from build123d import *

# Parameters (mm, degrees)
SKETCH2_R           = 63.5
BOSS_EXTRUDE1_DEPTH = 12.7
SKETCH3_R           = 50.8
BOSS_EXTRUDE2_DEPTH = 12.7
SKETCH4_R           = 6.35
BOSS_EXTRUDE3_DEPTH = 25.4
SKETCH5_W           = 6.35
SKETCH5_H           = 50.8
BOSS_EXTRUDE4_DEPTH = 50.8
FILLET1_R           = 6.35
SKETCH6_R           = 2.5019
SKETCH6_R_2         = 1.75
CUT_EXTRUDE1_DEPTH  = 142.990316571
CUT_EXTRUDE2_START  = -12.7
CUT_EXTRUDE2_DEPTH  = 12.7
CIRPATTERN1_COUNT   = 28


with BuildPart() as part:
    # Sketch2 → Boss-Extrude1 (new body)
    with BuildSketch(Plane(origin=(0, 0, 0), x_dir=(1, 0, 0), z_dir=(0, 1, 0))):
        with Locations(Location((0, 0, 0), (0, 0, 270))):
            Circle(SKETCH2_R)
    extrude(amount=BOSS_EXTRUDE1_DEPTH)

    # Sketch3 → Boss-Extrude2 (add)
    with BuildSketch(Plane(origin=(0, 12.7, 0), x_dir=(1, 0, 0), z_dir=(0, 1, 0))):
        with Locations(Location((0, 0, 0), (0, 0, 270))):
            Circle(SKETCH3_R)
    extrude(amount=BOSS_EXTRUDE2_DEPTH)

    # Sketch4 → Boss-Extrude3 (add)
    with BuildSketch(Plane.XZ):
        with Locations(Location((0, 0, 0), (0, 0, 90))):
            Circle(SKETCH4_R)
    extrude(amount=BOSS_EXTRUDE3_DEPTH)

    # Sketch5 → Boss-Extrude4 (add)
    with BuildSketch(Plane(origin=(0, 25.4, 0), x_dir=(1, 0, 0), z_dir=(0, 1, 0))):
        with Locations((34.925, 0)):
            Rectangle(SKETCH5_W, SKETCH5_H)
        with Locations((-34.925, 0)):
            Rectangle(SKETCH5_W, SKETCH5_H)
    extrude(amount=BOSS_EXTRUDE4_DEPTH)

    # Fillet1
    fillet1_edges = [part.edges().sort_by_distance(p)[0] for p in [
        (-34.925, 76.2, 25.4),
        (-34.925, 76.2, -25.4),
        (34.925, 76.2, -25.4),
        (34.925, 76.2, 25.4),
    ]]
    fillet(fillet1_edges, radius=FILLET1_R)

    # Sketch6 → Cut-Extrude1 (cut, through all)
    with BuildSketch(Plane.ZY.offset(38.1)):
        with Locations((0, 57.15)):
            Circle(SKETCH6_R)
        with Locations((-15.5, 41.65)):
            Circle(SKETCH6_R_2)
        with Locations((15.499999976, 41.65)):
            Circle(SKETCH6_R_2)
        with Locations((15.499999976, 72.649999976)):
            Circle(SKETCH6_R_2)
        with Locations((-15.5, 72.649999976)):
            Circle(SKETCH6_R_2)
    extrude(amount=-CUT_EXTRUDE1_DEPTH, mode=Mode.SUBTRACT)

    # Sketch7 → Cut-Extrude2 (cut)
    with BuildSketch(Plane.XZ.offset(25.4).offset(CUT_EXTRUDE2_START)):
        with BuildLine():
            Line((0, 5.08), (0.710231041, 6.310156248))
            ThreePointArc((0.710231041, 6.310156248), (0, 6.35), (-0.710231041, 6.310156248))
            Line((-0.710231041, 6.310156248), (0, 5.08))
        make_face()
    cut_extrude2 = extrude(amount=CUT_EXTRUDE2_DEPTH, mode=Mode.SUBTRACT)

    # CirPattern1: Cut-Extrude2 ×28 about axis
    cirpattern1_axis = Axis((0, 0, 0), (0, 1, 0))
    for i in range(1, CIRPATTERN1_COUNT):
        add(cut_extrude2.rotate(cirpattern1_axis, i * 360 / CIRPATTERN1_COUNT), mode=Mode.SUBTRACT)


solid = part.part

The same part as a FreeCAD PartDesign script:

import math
import FreeCAD as App
import Part
import Sketcher
Q = App.Units.Quantity


def edges_at(feature, points):
    """Names of the edges that pass closest to the given points."""
    edges = feature.Shape.Edges
    near = lambda p: min(range(len(edges)), key=lambda i: edges[i].distToShape(Part.Vertex(*p))[0])
    return sorted({f"Edge{near(p) + 1}" for p in points})


def add_polygon(sketch, points):
    """Adds a closed chain of lines whose ends are joined by coincident constraints."""
    first, n = sketch.GeometryCount, len(points)
    for a, b in zip(points, points[1:] + points[:1]):
        sketch.addGeometry(Part.LineSegment(App.Vector(*a, 0), App.Vector(*b, 0)), False)
    for i in range(n):
        sketch.addConstraint(Sketcher.Constraint("Coincident", first + i, 2, first + (i + 1) % n, 1))

doc = App.newDocument("Part")
params = doc.addObject("Spreadsheet::Sheet", "Params")
for row, (alias, value) in enumerate([
    ("sketch1_diameter", "5 in"),
    ("pad1_length", "0.5 in"),
    ("sketch2_diameter", "4 in"),
    ("pad2_length", "0.5 in"),
    ("sketch3_diameter", "0.5 in"),
    ("pad3_length", "1 in"),
    ("sketch4_height", "2 in"),
    ("sketch4_width", "0.25 in"),
    ("pad4_length", "2 in"),
    ("fillet_radius", "0.25 in"),
    ("sketch5_diameter", "0.197 in"),
    ("sketch6_radius", "0.25 in"),
    ("pocket2_length", "0.5 in"),
], start=1):
    params.set(f"A{row}", alias)
    params.set(f"B{row}", "=" + value)
    params.setAlias(f"B{row}", alias)

body = doc.addObject("PartDesign::Body", "Body")

sketch1 = doc.addObject("Sketcher::SketchObject", "Sketch")
body.addObject(sketch1)
sketch1.AttachmentSupport = (doc.XZ_Plane, [""])
sketch1.MapMode = "FlatFace"
sketch1.addGeometry(Part.Circle(App.Vector(0, 0, 0), App.Vector(0, 0, 1), 63.5), False)
sketch1.addConstraint(Sketcher.Constraint("Coincident", 0, 3, -1, 1))
sketch1.addConstraint(Sketcher.Constraint("Diameter", 0, Q("5 in")))
sketch1.setExpression("Constraints[1]", "Params.sketch1_diameter")
pad1 = doc.addObject("PartDesign::Pad", "Pad")
body.addObject(pad1)
pad1.Profile = sketch1
pad1.setExpression("Length", "Params.pad1_length")
pad1.Reversed = True

sketch2 = doc.addObject("Sketcher::SketchObject", "Sketch001")
body.addObject(sketch2)
sketch2.AttachmentSupport = (doc.XZ_Plane, [""])
sketch2.MapMode = "FlatFace"
sketch2.AttachmentOffset = App.Placement(App.Vector(0, 0, -0.5 * 25.4), App.Rotation())
sketch2.addGeometry(Part.Circle(App.Vector(0, 0, 0), App.Vector(0, 0, 1), 50.8), False)
sketch2.addConstraint(Sketcher.Constraint("Coincident", 0, 3, -1, 1))
sketch2.addConstraint(Sketcher.Constraint("Diameter", 0, Q("4 in")))
sketch2.setExpression("Constraints[1]", "Params.sketch2_diameter")
pad2 = doc.addObject("PartDesign::Pad", "Pad001")
body.addObject(pad2)
pad2.Profile = sketch2
pad2.setExpression("Length", "Params.pad2_length")
pad2.Reversed = True

sketch3 = doc.addObject("Sketcher::SketchObject", "Sketch002")
body.addObject(sketch3)
sketch3.AttachmentSupport = (doc.XZ_Plane, [""])
sketch3.MapMode = "FlatFace"
sketch3.addGeometry(Part.Circle(App.Vector(0, 0, 0), App.Vector(0, 0, 1), 6.35), False)
sketch3.addConstraint(Sketcher.Constraint("Coincident", 0, 3, -1, 1))
sketch3.addConstraint(Sketcher.Constraint("Diameter", 0, Q("0.5 in")))
sketch3.setExpression("Constraints[1]", "Params.sketch3_diameter")
pad3 = doc.addObject("PartDesign::Pad", "Pad002")
body.addObject(pad3)
pad3.Profile = sketch3
pad3.setExpression("Length", "Params.pad3_length")

sketch4 = doc.addObject("Sketcher::SketchObject", "Sketch003")
body.addObject(sketch4)
sketch4.AttachmentSupport = (doc.XZ_Plane, [""])
sketch4.MapMode = "FlatFace"
sketch4.AttachmentOffset = App.Placement(App.Vector(0, 0, -1 * 25.4), App.Rotation())
add_polygon(sketch4, [(31.75, -25.4), (31.75, 25.4), (38.1, 25.4), (38.1, -25.4)])
add_polygon(sketch4, [(-38.1, -25.4), (-38.1, 25.4), (-31.75, 25.4), (-31.75, -25.4)])
sketch4.addConstraint(Sketcher.Constraint("Vertical", 0))
sketch4.addConstraint(Sketcher.Constraint("Horizontal", 1))
sketch4.addConstraint(Sketcher.Constraint("Vertical", 2))
sketch4.addConstraint(Sketcher.Constraint("Horizontal", 3))
sketch4.addConstraint(Sketcher.Constraint("Vertical", 4))
sketch4.addConstraint(Sketcher.Constraint("Horizontal", 5))
sketch4.addConstraint(Sketcher.Constraint("Vertical", 6))
sketch4.addConstraint(Sketcher.Constraint("Horizontal", 7))
sketch4.addConstraint(Sketcher.Constraint("Symmetric", 2, 2, 4, 2, -1, 1))
sketch4.addConstraint(Sketcher.Constraint("Symmetric", 0, 2, 6, 2, -1, 1))
sketch4.addConstraint(Sketcher.Constraint("Horizontal", 1, 2, 4, 2))
sketch4.addConstraint(Sketcher.Constraint("DistanceY", 0, 1, 0, 2, Q("2 in")))
sketch4.addConstraint(Sketcher.Constraint("DistanceX", 4, 2, 1, 2, Q("3 in")))
sketch4.addConstraint(Sketcher.Constraint("DistanceX", 1, 1, 1, 2, Q("0.25 in")))
sketch4.setExpression("Constraints[19]", "Params.sketch4_height")
sketch4.setExpression("Constraints[21]", "Params.sketch4_width")
pad4 = doc.addObject("PartDesign::Pad", "Pad003")
body.addObject(pad4)
pad4.Profile = sketch4
pad4.setExpression("Length", "Params.pad4_length")
pad4.Reversed = True
doc.recompute()

fillet = doc.addObject("PartDesign::Fillet", "Fillet")
body.addObject(fillet)
fillet.Base = (pad4, edges_at(pad4, [
    (-34.925, 76.2, 25.4),
    (-34.925, 76.2, -25.4),
    (34.925, 76.2, -25.4),
    (34.925, 76.2, 25.4),
]))
fillet.setExpression("Radius", "Params.fillet_radius")

sketch5 = doc.addObject("Sketcher::SketchObject", "Sketch004")
body.addObject(sketch5)
sketch5.AttachmentSupport = (doc.YZ_Plane, [""])
sketch5.MapMode = "FlatFace"
sketch5.AttachmentOffset = App.Placement(App.Vector(0, 0, -1.5 * 25.4), App.Rotation())
sketch5.addGeometry(Part.Circle(App.Vector(57.15, 0, 0), App.Vector(0, 0, 1), 2.5019), False)
sketch5.addGeometry(Part.Circle(App.Vector(41.65, -15.5, 0), App.Vector(0, 0, 1), 1.75), False)
sketch5.addGeometry(Part.Circle(App.Vector(41.65, 15.5, 0), App.Vector(0, 0, 1), 1.75), False)
sketch5.addGeometry(Part.Circle(App.Vector(72.65, 15.5, 0), App.Vector(0, 0, 1), 1.75), False)
sketch5.addGeometry(Part.Circle(App.Vector(72.65, -15.5, 0), App.Vector(0, 0, 1), 1.75), False)
sketch5.addConstraint(Sketcher.Constraint("Equal", 1, 2))
sketch5.addConstraint(Sketcher.Constraint("Equal", 2, 3))
sketch5.addConstraint(Sketcher.Constraint("Equal", 3, 4))
sketch5.addConstraint(Sketcher.Constraint("Symmetric", 1, 3, 2, 3, -1))
sketch5.addConstraint(Sketcher.Constraint("Symmetric", 3, 3, 4, 3, -1))
sketch5.addConstraint(Sketcher.Constraint("PointOnObject", 0, 3, -1))
sketch5.addConstraint(Sketcher.Constraint("Horizontal", 2, 3, 3, 3))
sketch5.addConstraint(Sketcher.Constraint("Diameter", 0, Q("0.197 in")))
sketch5.addConstraint(Sketcher.Constraint("Diameter", 1, 3.5))
sketch5.addConstraint(Sketcher.Constraint("DistanceX", -1, 1, 0, 3, Q("2.25 in")))
sketch5.addConstraint(Sketcher.Constraint("DistanceX", -1, 1, 1, 3, 41.65))
sketch5.addConstraint(Sketcher.Constraint("DistanceY", 1, 3, -1, 1, 15.5))
sketch5.addConstraint(Sketcher.Constraint("DistanceX", -1, 1, 3, 3, 72.65))
sketch5.setExpression("Constraints[7]", "Params.sketch5_diameter")
pocket1 = doc.addObject("PartDesign::Pocket", "Pocket")
body.addObject(pocket1)
pocket1.Profile = sketch5
pocket1.Type = "ThroughAll"
pocket1.Reversed = True

sketch6 = doc.addObject("Sketcher::SketchObject", "Sketch005")
body.addObject(sketch6)
sketch6.AttachmentSupport = (doc.XZ_Plane, [""])
sketch6.MapMode = "FlatFace"
sketch6.AttachmentOffset = App.Placement(App.Vector(0, 0, 0.5 * 25.4), App.Rotation())
sketch6.addGeometry(Part.LineSegment(App.Vector(0, 5.08, 0), App.Vector(0.710231, 6.310156, 0)), False)
sketch6.addGeometry(Part.ArcOfCircle(Part.Circle(App.Vector(0, 0, 0), App.Vector(0, 0, 1), 6.35), math.radians(83.578179), math.radians(96.421821)), False)
sketch6.addGeometry(Part.LineSegment(App.Vector(-0.710231, 6.310156, 0), App.Vector(0, 5.08, 0)), False)
sketch6.addConstraint(Sketcher.Constraint("Coincident", 0, 2, 1, 1))
sketch6.addConstraint(Sketcher.Constraint("Coincident", 1, 2, 2, 1))
sketch6.addConstraint(Sketcher.Constraint("Coincident", 2, 2, 0, 1))
sketch6.addConstraint(Sketcher.Constraint("Coincident", 1, 3, -1, 1))
sketch6.addConstraint(Sketcher.Constraint("PointOnObject", 2, 2, -2))
sketch6.addConstraint(Sketcher.Constraint("Horizontal", 0, 2, 1, 2))
sketch6.addConstraint(Sketcher.Constraint("Radius", 1, Q("0.25 in")))
sketch6.addConstraint(Sketcher.Constraint("Angle", 0, Q("60 deg")))
sketch6.addConstraint(Sketcher.Constraint("DistanceY", -1, 1, 2, 2, Q("0.2 in")))
sketch6.setExpression("Constraints[6]", "Params.sketch6_radius")
pocket2 = doc.addObject("PartDesign::Pocket", "Pocket001")
body.addObject(pocket2)
pocket2.Profile = sketch6
pocket2.setExpression("Length", "Params.pocket2_length")
pocket2.Reversed = True
doc.recompute()

polarpattern = doc.addObject("PartDesign::PolarPattern", "PolarPattern")
body.addObject(polarpattern)
polarpattern.Originals = [pocket2]
polarpattern.Axis = (doc.Y_Axis, [""])
polarpattern.Angle = 360
polarpattern.Occurrences = 28
body.Tip = polarpattern

doc.recompute()
